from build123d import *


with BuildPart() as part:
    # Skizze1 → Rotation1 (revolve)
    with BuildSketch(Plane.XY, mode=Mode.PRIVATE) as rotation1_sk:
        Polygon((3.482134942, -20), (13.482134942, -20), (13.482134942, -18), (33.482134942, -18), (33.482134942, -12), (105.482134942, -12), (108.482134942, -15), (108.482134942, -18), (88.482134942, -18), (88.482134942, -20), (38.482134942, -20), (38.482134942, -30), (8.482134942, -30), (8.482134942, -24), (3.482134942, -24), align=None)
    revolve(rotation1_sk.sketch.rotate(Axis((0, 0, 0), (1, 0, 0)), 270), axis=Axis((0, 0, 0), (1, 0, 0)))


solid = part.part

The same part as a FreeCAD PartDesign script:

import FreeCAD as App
import Part
import Sketcher

doc = App.newDocument("Part")
params = doc.addObject("Spreadsheet::Sheet", "Params")
for row, (alias, value) in enumerate([
    ("sketch1_width", "10 mm"),
    ("sketch1_width2", "5 mm"),
    ("sketch1_width3", "30 mm"),
    ("sketch1_width4", "50 mm"),
    ("sketch1_width5", "20 mm"),
    ("revolution_angle", "360 deg"),
], start=1):
    params.set(f"A{row}", alias)
    params.set(f"B{row}", "=" + value)
    params.setAlias(f"B{row}", alias)

body = doc.addObject("PartDesign::Body", "Body")

# Sketch on XY plane
sketch1 = body.newObject("Sketcher::SketchObject", "Sketch")
sketch1.AttachmentSupport = (doc.getObject("XY_Plane"), [""])
sketch1.MapMode = "FlatFace"
sketch1.addGeometry([
    Part.LineSegment(App.Vector(13.5, -20, 0), App.Vector(3.5, -20, 0)),  # 0
    Part.LineSegment(App.Vector(3.5, -20, 0), App.Vector(3.5, -24, 0)),  # 1
    Part.LineSegment(App.Vector(3.5, -24, 0), App.Vector(8.5, -24, 0)),  # 2
    Part.LineSegment(App.Vector(8.5, -24, 0), App.Vector(8.5, -30, 0)),  # 3
    Part.LineSegment(App.Vector(8.5, -30, 0), App.Vector(38.5, -30, 0)),  # 4
    Part.LineSegment(App.Vector(38.5, -30, 0), App.Vector(38.5, -20, 0)),  # 5
    Part.LineSegment(App.Vector(38.5, -20, 0), App.Vector(88.5, -20, 0)),  # 6
    Part.LineSegment(App.Vector(88.5, -20, 0), App.Vector(88.5, -18, 0)),  # 7
    Part.LineSegment(App.Vector(88.5, -18, 0), App.Vector(108.5, -18, 0)),  # 8
    Part.LineSegment(App.Vector(108.5, -18, 0), App.Vector(108.5, -15, 0)),  # 9
    Part.LineSegment(App.Vector(108.5, -15, 0), App.Vector(105.5, -12, 0)),  # 10
    Part.LineSegment(App.Vector(105.5, -12, 0), App.Vector(33.5, -12, 0)),  # 11
    Part.LineSegment(App.Vector(33.5, -12, 0), App.Vector(33.5, -18, 0)),  # 12
    Part.LineSegment(App.Vector(33.5, -18, 0), App.Vector(13.5, -18, 0)),  # 13
    Part.LineSegment(App.Vector(13.5, -18, 0), App.Vector(13.5, -20, 0)),  # 14
], False)
sketch1.addConstraint([
    Sketcher.Constraint("Coincident", 0, 2, 1, 1),
    Sketcher.Constraint("Coincident", 1, 2, 2, 1),
    Sketcher.Constraint("Coincident", 2, 2, 3, 1),
    Sketcher.Constraint("Coincident", 3, 2, 4, 1),
    Sketcher.Constraint("Coincident", 4, 2, 5, 1),
    Sketcher.Constraint("Coincident", 5, 2, 6, 1),
    Sketcher.Constraint("Coincident", 6, 2, 7, 1),
    Sketcher.Constraint("Coincident", 7, 2, 8, 1),
    Sketcher.Constraint("Coincident", 8, 2, 9, 1),
    Sketcher.Constraint("Coincident", 9, 2, 10, 1),
    Sketcher.Constraint("Coincident", 10, 2, 11, 1),
    Sketcher.Constraint("Coincident", 11, 2, 12, 1),
    Sketcher.Constraint("Coincident", 12, 2, 13, 1),
    Sketcher.Constraint("Coincident", 13, 2, 14, 1),
    Sketcher.Constraint("Coincident", 14, 2, 0, 1),
    Sketcher.Constraint("Horizontal", 0),
    Sketcher.Constraint("Vertical", 1),
    Sketcher.Constraint("Horizontal", 2),
    Sketcher.Constraint("Vertical", 3),
    Sketcher.Constraint("Horizontal", 4),
    Sketcher.Constraint("Vertical", 5),
    Sketcher.Constraint("Horizontal", 6),
    Sketcher.Constraint("Vertical", 7),
    Sketcher.Constraint("Horizontal", 8),
    Sketcher.Constraint("Vertical", 9),
    Sketcher.Constraint("Horizontal", 11),
    Sketcher.Constraint("Vertical", 12),
    Sketcher.Constraint("Horizontal", 13),
    Sketcher.Constraint("Vertical", 14),
    Sketcher.Constraint("Horizontal", 0, 2, 5, 2),
    Sketcher.Constraint("Horizontal", 8, 2, 12, 2),
    Sketcher.Constraint("Equal", 8, 13),
    Sketcher.Constraint("Equal", 0, 5),
    Sketcher.Constraint("Equal", 3, 12),
    Sketcher.Constraint("DistanceX", 0, 2, 0, 1, 10.0),
    Sketcher.Constraint("DistanceX", 2, 1, 2, 2, 5.0),
    Sketcher.Constraint("DistanceX", 4, 1, 4, 2, 30.0),
    Sketcher.Constraint("DistanceX", 6, 1, 6, 2, 50.0),
    Sketcher.Constraint("DistanceX", 8, 1, 8, 2, 20.0),
    Sketcher.Constraint("DistanceX", 11, 2, 11, 1, 72.0),
    Sketcher.Constraint("DistanceY", 1, 2, 1, 1, 4.0),
    Sketcher.Constraint("DistanceY", 7, 1, 7, 2, 2.0),
    Sketcher.Constraint("DistanceY", 9, 1, 9, 2, 3.0),
    Sketcher.Constraint("DistanceY", 0, 2, -1, 1, 20.0),
    Sketcher.Constraint("DistanceX", -1, 1, 0, 2, 3.482135),
])
sketch1.setExpression("Constraints[34]", "Params.sketch1_width")
sketch1.setExpression("Constraints[35]", "Params.sketch1_width2")
sketch1.setExpression("Constraints[36]", "Params.sketch1_width3")
sketch1.setExpression("Constraints[37]", "Params.sketch1_width4")
sketch1.setExpression("Constraints[38]", "Params.sketch1_width5")
revolution = body.newObject("PartDesign::Revolution", "Revolution")
revolution.Profile = sketch1
revolution.ReferenceAxis = (sketch1, ["H_Axis"])
revolution.setExpression("Angle", "Params.revolution_angle")

doc.recompute()
